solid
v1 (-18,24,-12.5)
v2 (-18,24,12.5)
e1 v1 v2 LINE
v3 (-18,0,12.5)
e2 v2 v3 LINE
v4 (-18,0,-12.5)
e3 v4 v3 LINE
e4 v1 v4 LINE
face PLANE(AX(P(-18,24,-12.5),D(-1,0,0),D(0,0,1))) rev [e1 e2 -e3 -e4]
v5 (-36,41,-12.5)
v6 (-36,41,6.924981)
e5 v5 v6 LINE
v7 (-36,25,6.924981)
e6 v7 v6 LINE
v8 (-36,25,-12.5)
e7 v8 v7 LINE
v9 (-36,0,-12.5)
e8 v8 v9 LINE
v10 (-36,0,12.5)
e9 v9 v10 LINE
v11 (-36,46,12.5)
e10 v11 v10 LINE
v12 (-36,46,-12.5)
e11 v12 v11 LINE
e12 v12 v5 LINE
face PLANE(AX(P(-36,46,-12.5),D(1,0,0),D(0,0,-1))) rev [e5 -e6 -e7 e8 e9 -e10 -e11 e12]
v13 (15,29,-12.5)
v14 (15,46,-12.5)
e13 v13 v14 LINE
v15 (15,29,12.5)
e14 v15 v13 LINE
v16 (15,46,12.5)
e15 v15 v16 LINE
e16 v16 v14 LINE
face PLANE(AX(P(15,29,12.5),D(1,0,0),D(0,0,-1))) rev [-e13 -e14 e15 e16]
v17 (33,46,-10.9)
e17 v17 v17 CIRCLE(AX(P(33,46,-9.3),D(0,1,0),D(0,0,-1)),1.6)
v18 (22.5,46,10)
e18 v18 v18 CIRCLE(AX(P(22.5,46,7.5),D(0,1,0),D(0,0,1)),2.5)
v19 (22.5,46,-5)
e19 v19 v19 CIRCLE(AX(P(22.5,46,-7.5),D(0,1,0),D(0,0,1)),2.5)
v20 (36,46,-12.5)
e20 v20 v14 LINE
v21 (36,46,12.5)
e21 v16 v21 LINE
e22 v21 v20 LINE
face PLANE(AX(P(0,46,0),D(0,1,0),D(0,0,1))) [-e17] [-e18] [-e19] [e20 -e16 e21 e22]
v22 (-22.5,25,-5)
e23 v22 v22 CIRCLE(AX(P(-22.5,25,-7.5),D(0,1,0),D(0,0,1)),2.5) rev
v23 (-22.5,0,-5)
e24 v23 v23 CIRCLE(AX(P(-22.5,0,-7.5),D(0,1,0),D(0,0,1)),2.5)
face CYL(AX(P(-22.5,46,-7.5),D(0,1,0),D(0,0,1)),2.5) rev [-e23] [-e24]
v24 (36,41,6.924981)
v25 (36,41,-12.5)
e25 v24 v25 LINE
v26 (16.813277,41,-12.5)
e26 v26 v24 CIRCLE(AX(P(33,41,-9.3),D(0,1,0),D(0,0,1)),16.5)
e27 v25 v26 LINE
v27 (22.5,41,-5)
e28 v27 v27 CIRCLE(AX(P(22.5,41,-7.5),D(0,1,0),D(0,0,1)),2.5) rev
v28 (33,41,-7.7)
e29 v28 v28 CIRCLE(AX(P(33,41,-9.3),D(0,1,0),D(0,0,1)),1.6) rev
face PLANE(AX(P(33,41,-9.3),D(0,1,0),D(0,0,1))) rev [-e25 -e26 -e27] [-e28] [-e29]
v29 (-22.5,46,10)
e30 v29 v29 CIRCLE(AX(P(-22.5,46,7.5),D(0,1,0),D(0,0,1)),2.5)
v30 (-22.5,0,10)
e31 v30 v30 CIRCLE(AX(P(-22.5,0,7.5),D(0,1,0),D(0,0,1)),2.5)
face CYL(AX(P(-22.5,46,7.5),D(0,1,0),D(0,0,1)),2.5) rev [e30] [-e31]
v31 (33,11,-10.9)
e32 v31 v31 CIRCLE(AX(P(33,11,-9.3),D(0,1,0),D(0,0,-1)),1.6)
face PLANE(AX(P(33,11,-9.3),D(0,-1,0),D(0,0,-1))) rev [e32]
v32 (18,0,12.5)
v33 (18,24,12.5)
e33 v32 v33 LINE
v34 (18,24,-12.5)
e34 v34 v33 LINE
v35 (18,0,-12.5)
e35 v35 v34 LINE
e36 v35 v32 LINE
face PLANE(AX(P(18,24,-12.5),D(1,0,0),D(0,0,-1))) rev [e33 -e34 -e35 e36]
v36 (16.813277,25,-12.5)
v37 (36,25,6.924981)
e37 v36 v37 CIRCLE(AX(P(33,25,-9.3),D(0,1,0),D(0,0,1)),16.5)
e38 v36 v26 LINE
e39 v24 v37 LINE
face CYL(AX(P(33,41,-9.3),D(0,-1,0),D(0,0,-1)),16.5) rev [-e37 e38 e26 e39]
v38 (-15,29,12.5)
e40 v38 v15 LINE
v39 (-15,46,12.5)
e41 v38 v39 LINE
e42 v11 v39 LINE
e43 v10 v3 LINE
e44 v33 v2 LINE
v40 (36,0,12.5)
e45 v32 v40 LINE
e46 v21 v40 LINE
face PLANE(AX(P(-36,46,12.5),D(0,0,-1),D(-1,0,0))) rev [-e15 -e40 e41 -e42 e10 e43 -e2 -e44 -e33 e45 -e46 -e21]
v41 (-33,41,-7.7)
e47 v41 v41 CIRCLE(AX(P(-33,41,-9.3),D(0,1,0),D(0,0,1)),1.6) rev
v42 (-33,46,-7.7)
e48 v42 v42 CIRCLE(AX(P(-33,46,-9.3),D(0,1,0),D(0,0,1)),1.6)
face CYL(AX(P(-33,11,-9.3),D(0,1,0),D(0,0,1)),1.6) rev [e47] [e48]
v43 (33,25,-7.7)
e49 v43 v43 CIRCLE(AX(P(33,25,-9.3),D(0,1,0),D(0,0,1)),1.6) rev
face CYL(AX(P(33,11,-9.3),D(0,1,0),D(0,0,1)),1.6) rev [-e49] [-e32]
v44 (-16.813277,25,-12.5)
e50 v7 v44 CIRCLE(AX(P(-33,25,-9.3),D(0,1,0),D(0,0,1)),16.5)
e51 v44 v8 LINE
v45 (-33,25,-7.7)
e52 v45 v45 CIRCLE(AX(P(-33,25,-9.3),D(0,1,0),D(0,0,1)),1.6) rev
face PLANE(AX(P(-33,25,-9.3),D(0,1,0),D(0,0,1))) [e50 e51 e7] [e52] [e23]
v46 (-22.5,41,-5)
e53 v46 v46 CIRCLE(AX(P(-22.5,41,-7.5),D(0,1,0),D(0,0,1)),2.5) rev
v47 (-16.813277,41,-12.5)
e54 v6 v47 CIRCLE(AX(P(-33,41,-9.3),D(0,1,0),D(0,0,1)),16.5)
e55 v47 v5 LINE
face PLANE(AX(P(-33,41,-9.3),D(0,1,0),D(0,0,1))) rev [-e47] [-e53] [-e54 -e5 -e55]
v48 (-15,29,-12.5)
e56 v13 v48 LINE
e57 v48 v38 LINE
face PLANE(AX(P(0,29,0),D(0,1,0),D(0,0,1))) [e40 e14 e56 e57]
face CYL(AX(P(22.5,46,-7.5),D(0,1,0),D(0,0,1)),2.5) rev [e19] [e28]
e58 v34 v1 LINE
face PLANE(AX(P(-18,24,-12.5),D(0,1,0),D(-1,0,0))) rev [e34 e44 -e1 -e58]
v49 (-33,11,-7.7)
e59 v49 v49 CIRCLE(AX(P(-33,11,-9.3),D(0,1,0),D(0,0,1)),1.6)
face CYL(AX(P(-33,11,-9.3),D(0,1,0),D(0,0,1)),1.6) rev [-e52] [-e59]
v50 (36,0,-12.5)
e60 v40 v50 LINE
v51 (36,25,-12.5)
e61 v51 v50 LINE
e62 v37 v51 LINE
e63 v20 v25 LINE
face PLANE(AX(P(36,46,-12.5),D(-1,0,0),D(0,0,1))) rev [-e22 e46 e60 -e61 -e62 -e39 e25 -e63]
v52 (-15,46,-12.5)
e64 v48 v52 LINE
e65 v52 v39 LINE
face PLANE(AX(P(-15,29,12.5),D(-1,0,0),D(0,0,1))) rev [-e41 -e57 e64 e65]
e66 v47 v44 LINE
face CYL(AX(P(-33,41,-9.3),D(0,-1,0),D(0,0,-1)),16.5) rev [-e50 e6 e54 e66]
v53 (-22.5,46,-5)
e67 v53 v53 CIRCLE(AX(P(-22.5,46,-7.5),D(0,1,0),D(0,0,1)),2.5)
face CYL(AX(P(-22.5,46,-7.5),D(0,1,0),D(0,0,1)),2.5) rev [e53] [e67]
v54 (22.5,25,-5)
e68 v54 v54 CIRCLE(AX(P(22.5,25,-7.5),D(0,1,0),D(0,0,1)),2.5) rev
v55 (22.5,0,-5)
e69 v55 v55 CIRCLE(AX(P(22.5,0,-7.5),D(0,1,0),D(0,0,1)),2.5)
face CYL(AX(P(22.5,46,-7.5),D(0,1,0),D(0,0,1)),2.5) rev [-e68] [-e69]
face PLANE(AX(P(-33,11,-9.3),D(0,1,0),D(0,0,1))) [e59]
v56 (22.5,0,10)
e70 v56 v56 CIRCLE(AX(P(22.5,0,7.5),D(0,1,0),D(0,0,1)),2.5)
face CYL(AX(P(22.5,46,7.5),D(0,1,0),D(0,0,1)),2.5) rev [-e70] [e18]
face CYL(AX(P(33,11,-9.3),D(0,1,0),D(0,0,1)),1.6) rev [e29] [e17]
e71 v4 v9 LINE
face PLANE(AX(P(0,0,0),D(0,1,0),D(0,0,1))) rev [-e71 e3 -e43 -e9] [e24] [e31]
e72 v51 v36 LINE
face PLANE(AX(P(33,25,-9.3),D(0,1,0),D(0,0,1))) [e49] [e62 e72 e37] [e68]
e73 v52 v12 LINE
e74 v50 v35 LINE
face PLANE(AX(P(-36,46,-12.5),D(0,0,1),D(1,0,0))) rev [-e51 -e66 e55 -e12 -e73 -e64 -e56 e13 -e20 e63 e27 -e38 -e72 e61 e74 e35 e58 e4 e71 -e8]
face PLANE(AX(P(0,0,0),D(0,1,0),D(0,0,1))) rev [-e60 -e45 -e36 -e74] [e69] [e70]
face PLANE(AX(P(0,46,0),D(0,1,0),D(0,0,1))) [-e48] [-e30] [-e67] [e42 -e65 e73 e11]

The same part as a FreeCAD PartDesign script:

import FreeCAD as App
import Part
import Sketcher
Q = App.Units.Quantity


def add_polygon(sketch, points):
    """Adds a closed chain of lines whose ends are joined by coincident constraints."""
    first, n = sketch.GeometryCount, len(points)
    for a, b in zip(points, points[1:] + points[:1]):
        sketch.addGeometry(Part.LineSegment(App.Vector(*a, 0), App.Vector(*b, 0)), False)
    for i in range(n):
        sketch.addConstraint(Sketcher.Constraint("Coincident", first + i, 2, first + (i + 1) % n, 1))

doc = App.newDocument("Part")
body = doc.addObject("PartDesign::Body", "Body")

sketch1 = body.newObject("Sketcher::SketchObject", "Sketch")
sketch1.AttachmentSupport = (doc.getObject("XZ_Plane"), [""])
sketch1.MapMode = "FlatFace"
add_polygon(sketch1, [(-36, -12), (-36, 12), (36, 12), (36, -12)])
sketch1.addConstraint([
    Sketcher.Constraint("Vertical", 0),
    Sketcher.Constraint("Horizontal", 1),
    Sketcher.Constraint("Vertical", 2),
    Sketcher.Constraint("Horizontal", 3),
    Sketcher.Constraint("Symmetric", 0, 2, 2, 2, -1, 1),
    Sketcher.Constraint("DistanceX", 1, 1, 1, 2, Q("72 mm")),
    Sketcher.Constraint("DistanceY", 0, 1, 0, 2, Q("25 mm")),
])
pad1 = body.newObject("PartDesign::Pad", "Pad")
pad1.Profile = sketch1
pad1.Length = 46
pad1.Reversed = True

sketch2 = body.newObject("Sketcher::SketchObject", "Sketch001")
sketch2.AttachmentSupport = (doc.getObject("XZ_Plane"), [""])
sketch2.MapMode = "FlatFace"
sketch2.AttachmentOffset = App.Placement(App.Vector(0, 0, -46), App.Rotation())
sketch2.addGeometry([
    Part.Circle(App.Vector(-33, -9.3, 0), App.Vector(0, 0, 1), 1.6),
    Part.Circle(App.Vector(33, -9.3, 0), App.Vector(0, 0, 1), 1.6),
], False)
sketch2.addConstraint([
    Sketcher.Constraint("Equal", 0, 1),
    Sketcher.Constraint("Symmetric", 0, 3, 1, 3, -2),
    Sketcher.Constraint("Diameter", 0, Q("3.2 mm")),
    Sketcher.Constraint("DistanceX", 0, 3, -1, 1, Q("33 mm")),
    Sketcher.Constraint("DistanceY", 0, 3, -1, 1, Q("9.3 mm")),
])
pocket1 = body.newObject("PartDesign::Pocket", "Pocket")
pocket1.Profile = sketch2
pocket1.Length = 35
pocket1.Reversed = True

sketch3 = body.newObject("Sketcher::SketchObject", "Sketch002")
sketch3.AttachmentSupport = (doc.getObject("XZ_Plane"), [""])
sketch3.MapMode = "FlatFace"
sketch3.AttachmentOffset = App.Placement(App.Vector(0, 0, -46), App.Rotation())
sketch3.addGeometry([
    Part.Circle(App.Vector(-22.5, 7.5, 0), App.Vector(0, 0, 1), 2.5),
    Part.Circle(App.Vector(22.5, 7.5, 0), App.Vector(0, 0, 1), 2.5),
    Part.Circle(App.Vector(-22.5, -7.5, 0), App.Vector(0, 0, 1), 2.5),
    Part.Circle(App.Vector(22.5, -7.5, 0), App.Vector(0, 0, 1), 2.5),
], False)
sketch3.addConstraint([
    Sketcher.Constraint("Equal", 0, 1),
    Sketcher.Constraint("Equal", 1, 2),
    Sketcher.Constraint("Equal", 2, 3),
    Sketcher.Constraint("Symmetric", 1, 3, 2, 3, -1, 1),
    Sketcher.Constraint("Symmetric", 0, 3, 3, 3, -1, 1),
    Sketcher.Constraint("Symmetric", 0, 3, 1, 3, -2),
    Sketcher.Constraint("Diameter", 0, Q("5 mm")),
    Sketcher.Constraint("DistanceX", 0, 3, 1, 3, Q("45 mm")),
    Sketcher.Constraint("DistanceY", 2, 3, 0, 3, Q("15 mm")),
])
doc.recompute()
hole = body.newObject("PartDesign::Hole", "Hole")
hole.Profile = sketch3
hole.ThreadType = "None"
hole.Diameter = 5
hole.DepthType = "ThroughAll"
hole.Reversed = True

sketch4 = body.newObject("Sketcher::SketchObject", "Sketch003")
sketch4.AttachmentSupport = (doc.getObject("XY_Plane"), [""])
sketch4.MapMode = "FlatFace"
sketch4.AttachmentOffset = App.Placement(App.Vector(0, 0, 12.5), App.Rotation())
add_polygon(sketch4, [(-18, 24), (-18, 0), (18, 0), (18, 24)])
sketch4.addConstraint([
    Sketcher.Constraint("Vertical", 0),
    Sketcher.Constraint("Horizontal", 1),
    Sketcher.Constraint("Vertical", 2),
    Sketcher.Constraint("Horizontal", 3),
    Sketcher.Constraint("Symmetric", 0, 2, 1, 2, -1, 1),
    Sketcher.Constraint("DistanceX", 1, 1, 1, 2, Q("36 mm")),
    Sketcher.Constraint("DistanceY", 0, 2, 0, 1, Q("24 mm")),
])
pocket2 = body.newObject("PartDesign::Pocket", "Pocket001")
pocket2.Profile = sketch4
pocket2.Type = "ThroughAll"

sketch5 = body.newObject("Sketcher::SketchObject", "Sketch004")
sketch5.AttachmentSupport = (doc.getObject("XZ_Plane"), [""])
sketch5.MapMode = "FlatFace"
sketch5.AttachmentOffset = App.Placement(App.Vector(0, 0, -46), App.Rotation())
add_polygon(sketch5, [(-15, -12), (-15, 12), (15, 12), (15, -12)])
sketch5.addConstraint([
    Sketcher.Constraint("Vertical", 0),
    Sketcher.Constraint("Horizontal", 1),
    Sketcher.Constraint("Vertical", 2),
    Sketcher.Constraint("Horizontal", 3),
    Sketcher.Constraint("Symmetric", 0, 2, 2, 2, -1, 1),
    Sketcher.Constraint("DistanceX", 1, 1, 1, 2, Q("30 mm")),
    Sketcher.Constraint("DistanceY", 0, 1, 0, 2, Q("25 mm")),
])
pocket3 = body.newObject("PartDesign::Pocket", "Pocket002")
pocket3.Profile = sketch5
pocket3.Length = 17
pocket3.Reversed = True

sketch6 = body.newObject("Sketcher::SketchObject", "Sketch005")
sketch6.AttachmentSupport = (doc.getObject("XZ_Plane"), [""])
sketch6.MapMode = "FlatFace"
sketch6.AttachmentOffset = App.Placement(App.Vector(0, 0, -25), App.Rotation())
sketch6.addGeometry([
    Part.Circle(App.Vector(-33, -9, 0), App.Vector(0, 0, 1), 16),
    Part.Circle(App.Vector(33, -9, 0), App.Vector(0, 0, 1), 16),
], False)
sketch6.addConstraint([
    Sketcher.Constraint("Equal", 0, 1),
    Sketcher.Constraint("Symmetric", 0, 3, 1, 3, -2),
    Sketcher.Constraint("Diameter", 0, Q("33 mm")),
    Sketcher.Constraint("DistanceX", 0, 3, -1, 1, Q("33 mm")),
    Sketcher.Constraint("DistanceY", 0, 3, -1, 1, Q("9.3 mm")),
])
pocket4 = body.newObject("PartDesign::Pocket", "Pocket003")
pocket4.Profile = sketch6
pocket4.Length = 16

doc.recompute()
